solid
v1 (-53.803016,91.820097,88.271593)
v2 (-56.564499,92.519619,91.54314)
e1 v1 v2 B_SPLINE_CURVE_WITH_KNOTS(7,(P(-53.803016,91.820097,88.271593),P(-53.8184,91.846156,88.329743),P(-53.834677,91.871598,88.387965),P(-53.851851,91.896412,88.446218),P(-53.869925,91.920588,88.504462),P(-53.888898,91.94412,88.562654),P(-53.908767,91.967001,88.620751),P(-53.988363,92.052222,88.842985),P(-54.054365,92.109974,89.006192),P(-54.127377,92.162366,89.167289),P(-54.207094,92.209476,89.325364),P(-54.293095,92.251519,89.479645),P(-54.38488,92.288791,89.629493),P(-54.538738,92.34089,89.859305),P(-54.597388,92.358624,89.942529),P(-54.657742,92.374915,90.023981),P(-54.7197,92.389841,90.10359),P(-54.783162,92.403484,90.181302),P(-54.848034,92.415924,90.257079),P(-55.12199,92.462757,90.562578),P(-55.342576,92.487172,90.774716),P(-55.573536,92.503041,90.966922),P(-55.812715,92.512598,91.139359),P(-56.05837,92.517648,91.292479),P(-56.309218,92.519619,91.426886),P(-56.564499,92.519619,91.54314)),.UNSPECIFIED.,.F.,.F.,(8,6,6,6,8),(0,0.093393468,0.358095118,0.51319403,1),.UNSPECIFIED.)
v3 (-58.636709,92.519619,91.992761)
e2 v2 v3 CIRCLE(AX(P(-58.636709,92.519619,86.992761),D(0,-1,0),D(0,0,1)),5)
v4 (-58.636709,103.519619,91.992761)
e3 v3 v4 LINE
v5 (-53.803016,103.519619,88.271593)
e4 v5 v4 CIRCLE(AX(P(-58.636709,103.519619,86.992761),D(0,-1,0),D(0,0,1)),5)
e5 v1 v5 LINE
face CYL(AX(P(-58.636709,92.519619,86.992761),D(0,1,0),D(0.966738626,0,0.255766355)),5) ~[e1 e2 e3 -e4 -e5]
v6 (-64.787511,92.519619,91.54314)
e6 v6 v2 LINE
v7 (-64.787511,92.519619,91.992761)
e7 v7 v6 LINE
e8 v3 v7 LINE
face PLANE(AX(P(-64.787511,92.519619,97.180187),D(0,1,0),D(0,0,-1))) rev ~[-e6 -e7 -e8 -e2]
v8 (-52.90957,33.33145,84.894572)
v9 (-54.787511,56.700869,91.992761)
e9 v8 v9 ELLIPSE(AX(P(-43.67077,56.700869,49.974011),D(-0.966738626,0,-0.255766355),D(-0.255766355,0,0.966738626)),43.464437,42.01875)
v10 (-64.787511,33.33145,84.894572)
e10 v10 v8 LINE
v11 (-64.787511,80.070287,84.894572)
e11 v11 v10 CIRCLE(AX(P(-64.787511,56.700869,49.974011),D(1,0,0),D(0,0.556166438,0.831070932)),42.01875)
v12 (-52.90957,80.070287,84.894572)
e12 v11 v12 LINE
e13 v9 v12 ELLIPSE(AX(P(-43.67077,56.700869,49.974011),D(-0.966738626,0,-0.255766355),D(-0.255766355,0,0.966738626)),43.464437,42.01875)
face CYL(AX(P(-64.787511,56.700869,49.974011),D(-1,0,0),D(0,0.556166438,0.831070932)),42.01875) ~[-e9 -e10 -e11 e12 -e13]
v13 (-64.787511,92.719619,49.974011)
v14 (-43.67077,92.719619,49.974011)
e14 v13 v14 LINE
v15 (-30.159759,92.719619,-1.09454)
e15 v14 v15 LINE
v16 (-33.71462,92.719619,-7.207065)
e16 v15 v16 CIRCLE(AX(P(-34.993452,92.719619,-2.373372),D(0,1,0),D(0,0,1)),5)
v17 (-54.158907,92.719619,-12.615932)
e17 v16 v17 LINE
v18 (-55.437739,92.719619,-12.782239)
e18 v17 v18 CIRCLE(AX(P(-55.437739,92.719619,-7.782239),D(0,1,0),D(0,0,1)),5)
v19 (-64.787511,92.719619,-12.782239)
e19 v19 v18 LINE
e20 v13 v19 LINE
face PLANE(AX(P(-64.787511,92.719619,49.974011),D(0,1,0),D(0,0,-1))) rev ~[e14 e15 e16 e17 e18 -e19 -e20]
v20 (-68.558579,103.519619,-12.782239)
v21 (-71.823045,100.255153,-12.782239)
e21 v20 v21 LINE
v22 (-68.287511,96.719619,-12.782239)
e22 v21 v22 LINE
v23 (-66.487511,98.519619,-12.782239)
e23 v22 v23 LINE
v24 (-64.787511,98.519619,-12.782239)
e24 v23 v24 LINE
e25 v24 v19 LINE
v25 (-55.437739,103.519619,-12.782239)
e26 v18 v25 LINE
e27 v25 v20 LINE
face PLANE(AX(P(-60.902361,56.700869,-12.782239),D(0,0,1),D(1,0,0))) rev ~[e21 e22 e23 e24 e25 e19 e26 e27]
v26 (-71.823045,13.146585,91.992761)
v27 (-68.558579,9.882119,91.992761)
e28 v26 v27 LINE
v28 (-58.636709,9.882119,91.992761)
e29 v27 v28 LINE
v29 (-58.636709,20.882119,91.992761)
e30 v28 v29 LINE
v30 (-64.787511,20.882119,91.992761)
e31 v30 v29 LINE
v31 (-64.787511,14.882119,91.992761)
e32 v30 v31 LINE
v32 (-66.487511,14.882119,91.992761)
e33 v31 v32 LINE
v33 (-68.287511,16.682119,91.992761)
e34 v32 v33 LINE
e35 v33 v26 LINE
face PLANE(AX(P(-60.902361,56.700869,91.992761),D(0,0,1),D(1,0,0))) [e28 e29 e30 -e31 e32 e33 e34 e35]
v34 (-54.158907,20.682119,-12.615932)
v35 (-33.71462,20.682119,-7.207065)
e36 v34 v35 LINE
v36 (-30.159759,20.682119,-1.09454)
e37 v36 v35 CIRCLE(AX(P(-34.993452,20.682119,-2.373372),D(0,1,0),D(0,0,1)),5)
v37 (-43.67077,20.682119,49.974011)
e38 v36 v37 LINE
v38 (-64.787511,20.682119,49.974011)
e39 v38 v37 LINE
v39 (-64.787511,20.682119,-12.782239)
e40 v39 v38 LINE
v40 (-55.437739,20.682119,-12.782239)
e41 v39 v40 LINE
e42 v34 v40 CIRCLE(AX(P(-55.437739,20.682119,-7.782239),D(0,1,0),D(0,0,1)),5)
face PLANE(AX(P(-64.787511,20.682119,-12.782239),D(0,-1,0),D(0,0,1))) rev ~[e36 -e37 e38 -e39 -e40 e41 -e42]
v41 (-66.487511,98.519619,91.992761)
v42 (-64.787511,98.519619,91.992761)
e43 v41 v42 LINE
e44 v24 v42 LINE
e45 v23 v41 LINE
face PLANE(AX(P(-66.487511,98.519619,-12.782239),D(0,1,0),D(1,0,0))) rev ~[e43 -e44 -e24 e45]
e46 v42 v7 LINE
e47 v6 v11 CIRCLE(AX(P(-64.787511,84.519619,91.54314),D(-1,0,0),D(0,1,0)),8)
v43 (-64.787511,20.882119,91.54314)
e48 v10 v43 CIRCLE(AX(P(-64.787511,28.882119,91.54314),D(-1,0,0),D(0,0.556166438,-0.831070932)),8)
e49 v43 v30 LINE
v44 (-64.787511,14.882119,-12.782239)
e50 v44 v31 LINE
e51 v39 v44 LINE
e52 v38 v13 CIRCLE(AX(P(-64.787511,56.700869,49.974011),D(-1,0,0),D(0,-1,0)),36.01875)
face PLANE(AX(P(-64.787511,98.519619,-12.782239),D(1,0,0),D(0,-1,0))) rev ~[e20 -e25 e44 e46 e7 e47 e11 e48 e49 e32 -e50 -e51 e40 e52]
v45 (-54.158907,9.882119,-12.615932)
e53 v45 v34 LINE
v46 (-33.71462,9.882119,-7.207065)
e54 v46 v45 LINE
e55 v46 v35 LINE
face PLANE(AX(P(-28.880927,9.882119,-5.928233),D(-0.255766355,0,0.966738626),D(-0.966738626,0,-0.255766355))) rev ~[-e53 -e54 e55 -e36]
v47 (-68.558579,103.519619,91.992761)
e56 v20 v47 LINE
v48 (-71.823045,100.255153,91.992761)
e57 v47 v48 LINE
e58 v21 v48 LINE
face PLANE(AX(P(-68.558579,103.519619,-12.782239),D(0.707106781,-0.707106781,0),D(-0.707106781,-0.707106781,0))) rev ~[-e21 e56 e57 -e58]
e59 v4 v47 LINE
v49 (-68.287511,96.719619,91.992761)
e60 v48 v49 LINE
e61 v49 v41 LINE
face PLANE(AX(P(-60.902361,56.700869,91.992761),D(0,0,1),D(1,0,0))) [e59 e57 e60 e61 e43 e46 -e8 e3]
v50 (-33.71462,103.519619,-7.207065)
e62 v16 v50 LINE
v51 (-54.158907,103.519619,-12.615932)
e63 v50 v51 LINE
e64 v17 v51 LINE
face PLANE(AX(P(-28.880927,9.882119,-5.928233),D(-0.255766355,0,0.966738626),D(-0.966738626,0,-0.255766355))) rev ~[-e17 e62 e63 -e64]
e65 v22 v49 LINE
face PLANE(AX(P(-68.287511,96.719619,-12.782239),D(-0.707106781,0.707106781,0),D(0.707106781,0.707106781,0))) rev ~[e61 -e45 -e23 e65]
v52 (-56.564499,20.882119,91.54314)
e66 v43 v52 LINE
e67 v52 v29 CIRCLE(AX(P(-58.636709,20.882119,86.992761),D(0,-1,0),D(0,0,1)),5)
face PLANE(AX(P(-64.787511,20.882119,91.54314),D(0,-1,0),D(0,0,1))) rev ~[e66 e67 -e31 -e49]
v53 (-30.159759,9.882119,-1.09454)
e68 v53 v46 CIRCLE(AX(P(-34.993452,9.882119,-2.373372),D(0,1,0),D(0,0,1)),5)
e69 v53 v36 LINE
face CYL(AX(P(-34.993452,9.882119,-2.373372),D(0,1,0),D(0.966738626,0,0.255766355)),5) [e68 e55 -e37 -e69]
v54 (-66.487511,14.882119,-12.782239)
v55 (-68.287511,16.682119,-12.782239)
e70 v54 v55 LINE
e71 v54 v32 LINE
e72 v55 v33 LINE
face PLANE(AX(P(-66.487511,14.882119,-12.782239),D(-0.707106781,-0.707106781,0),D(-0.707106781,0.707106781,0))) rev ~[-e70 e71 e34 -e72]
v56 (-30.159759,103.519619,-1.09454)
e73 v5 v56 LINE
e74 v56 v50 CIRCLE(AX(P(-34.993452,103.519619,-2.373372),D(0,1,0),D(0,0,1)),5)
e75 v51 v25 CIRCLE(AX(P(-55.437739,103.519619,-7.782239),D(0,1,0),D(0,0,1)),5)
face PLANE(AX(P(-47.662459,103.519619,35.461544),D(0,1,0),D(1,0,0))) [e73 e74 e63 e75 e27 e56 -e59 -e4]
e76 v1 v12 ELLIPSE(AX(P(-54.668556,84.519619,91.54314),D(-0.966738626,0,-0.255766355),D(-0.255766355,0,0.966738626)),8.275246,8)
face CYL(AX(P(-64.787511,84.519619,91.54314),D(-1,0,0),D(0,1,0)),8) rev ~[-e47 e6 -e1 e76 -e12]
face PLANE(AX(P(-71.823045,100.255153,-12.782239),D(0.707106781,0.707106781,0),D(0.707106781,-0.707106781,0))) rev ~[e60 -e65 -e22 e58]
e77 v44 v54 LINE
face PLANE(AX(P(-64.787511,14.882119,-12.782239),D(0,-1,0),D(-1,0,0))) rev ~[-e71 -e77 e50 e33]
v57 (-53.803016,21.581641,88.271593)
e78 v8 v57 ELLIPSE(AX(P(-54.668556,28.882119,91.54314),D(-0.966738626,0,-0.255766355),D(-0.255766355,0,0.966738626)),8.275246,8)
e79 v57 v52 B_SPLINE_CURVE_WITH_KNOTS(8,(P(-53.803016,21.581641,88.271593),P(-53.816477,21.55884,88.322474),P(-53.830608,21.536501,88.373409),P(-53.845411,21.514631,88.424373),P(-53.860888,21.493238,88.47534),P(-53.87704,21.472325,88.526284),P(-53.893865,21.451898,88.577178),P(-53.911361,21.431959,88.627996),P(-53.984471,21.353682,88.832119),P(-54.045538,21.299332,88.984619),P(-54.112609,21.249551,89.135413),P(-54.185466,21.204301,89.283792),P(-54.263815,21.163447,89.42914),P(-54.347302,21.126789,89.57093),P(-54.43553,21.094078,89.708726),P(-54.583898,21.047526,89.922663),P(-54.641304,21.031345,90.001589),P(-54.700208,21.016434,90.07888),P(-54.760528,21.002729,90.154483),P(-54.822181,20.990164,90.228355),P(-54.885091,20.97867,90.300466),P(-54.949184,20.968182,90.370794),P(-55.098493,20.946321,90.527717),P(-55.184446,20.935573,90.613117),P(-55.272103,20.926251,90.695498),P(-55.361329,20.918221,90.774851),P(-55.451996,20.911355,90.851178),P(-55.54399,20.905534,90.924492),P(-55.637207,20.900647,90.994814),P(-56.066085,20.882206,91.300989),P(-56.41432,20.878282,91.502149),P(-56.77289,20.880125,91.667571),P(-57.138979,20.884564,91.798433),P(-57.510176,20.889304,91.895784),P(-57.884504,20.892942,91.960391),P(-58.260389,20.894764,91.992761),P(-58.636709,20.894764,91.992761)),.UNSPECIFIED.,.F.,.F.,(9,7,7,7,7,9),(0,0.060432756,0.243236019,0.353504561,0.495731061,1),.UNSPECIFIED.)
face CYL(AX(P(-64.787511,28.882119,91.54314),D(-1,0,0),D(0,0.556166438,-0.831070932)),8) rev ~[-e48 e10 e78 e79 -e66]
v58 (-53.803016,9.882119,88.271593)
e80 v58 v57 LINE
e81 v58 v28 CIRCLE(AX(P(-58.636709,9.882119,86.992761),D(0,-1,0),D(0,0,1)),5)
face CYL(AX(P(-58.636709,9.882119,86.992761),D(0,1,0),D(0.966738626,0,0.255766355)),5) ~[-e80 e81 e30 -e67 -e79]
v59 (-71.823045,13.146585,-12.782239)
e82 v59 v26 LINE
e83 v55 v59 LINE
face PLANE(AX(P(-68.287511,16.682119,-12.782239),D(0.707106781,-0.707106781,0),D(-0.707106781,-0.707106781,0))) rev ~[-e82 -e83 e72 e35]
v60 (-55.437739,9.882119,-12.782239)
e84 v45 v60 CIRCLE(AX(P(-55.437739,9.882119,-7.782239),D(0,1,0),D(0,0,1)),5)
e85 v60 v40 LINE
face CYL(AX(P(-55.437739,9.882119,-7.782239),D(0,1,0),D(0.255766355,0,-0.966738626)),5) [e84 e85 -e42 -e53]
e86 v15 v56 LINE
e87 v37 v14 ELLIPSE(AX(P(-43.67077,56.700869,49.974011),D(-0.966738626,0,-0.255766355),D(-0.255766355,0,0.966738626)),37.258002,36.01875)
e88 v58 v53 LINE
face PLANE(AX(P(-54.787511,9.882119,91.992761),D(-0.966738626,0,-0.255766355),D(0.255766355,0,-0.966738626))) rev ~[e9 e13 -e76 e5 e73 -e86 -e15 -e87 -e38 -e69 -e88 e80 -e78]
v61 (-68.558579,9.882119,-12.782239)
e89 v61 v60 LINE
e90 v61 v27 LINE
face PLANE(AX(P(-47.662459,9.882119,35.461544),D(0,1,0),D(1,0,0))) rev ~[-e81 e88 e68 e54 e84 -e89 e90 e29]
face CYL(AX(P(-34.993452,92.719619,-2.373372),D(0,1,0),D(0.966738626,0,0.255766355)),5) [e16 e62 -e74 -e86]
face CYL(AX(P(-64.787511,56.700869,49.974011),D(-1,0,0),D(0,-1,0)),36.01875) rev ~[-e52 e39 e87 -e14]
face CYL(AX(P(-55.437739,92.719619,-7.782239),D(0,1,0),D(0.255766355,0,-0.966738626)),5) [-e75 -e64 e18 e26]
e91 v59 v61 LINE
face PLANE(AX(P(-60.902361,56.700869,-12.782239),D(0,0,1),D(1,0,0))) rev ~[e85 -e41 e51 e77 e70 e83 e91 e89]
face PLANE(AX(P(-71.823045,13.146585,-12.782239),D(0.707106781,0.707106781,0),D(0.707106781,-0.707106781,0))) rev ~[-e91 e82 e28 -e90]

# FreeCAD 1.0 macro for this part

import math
import FreeCAD as App
import Part
import Sketcher
Q = App.Units.Quantity


def edges_at(feature, points):
    """Names of the edges that pass closest to the given points."""
    edges = feature.Shape.Edges
    near = lambda p: min(range(len(edges)), key=lambda i: edges[i].distToShape(Part.Vertex(*p))[0])
    return sorted({f"Edge{near(p) + 1}" for p in points})


def add_polygon(sketch, points):
    """Adds a closed chain of lines whose ends are joined by coincident constraints."""
    first, n = sketch.GeometryCount, len(points)
    for a, b in zip(points, points[1:] + points[:1]):
        sketch.addGeometry(Part.LineSegment(App.Vector(*a, 0), App.Vector(*b, 0)), False)
    for i in range(n):
        sketch.addConstraint(Sketcher.Constraint("Coincident", first + i, 2, first + (i + 1) % n, 1))

doc = App.newDocument("Part")
body = doc.addObject("PartDesign::Body", "Body")

sketch1 = body.newObject("Sketcher::SketchObject", "Sketch")
sketch1.AttachmentSupport = (doc.getObject("XY_Plane"), [""])
sketch1.MapMode = "FlatFace"
add_polygon(sketch1, [(-68.3, 96.7), (-66.5, 98.5), (-64.8, 98.5), (-64.8, 14.9), (-66.5, 14.9), (-68.3, 16.7), (-71.8, 13.1), (-68.6, 9.9), (-54.8, 9.9), (-54.8, 103.5), (-68.6, 103.5), (-71.8, 100.3)])
sketch1.addConstraint([
    Sketcher.Constraint("Horizontal", 1),
    Sketcher.Constraint("Vertical", 2),
    Sketcher.Constraint("Horizontal", 3),
    Sketcher.Constraint("Horizontal", 7),
    Sketcher.Constraint("Vertical", 8),
    Sketcher.Constraint("Horizontal", 9),
    Sketcher.Constraint("Perpendicular", 0, 4),
    Sketcher.Constraint("Perpendicular", 4, 5),
    Sketcher.Constraint("Perpendicular", 5, 6),
    Sketcher.Constraint("Perpendicular", 6, 10),
    Sketcher.Constraint("Perpendicular", 10, 11),
    Sketcher.Constraint("Vertical", 0, 2, 3, 2),
    Sketcher.Constraint("Vertical", 6, 2, 9, 2),
    Sketcher.Constraint("Vertical", 5, 2, 10, 2),
    Sketcher.Constraint("Vertical", 4, 2, 11, 2),
    Sketcher.Constraint("Equal", 0, 4),
    Sketcher.Constraint("Distance", 5, Q("5 mm")),
    Sketcher.Constraint("DistanceX", 1, 1, 1, 2, Q("1.7 mm")),
    Sketcher.Constraint("DistanceY", 6, 2, 3, 2, Q("5 mm")),
    Sketcher.Constraint("DistanceX", 2, 2, 7, 2, Q("10 mm")),
    Sketcher.Constraint("DistanceX", 4, 2, 3, 2, Q("1.8 mm")),
    Sketcher.Constraint("DistanceY", 2, 2, 2, 1, Q("83.6375 mm")),
    Sketcher.Constraint("DistanceX", 0, 2, -1, 1, Q("66.487511 mm")),
    Sketcher.Constraint("DistanceY", -1, 1, 0, 2, Q("98.519619 mm")),
])
pad1 = body.newObject("PartDesign::Pad", "Pad")
pad1.Profile = sketch1
pad1.Type = "TwoLengths"
pad1.Length = 91.992761
pad1.Length2 = 12.782239

sketch2 = body.newObject("Sketcher::SketchObject", "Sketch001")
sketch2.AttachmentSupport = (doc.getObject("XZ_Plane"), [""])
sketch2.MapMode = "FlatFace"
sketch2.AttachmentOffset = App.Placement(App.Vector(0, 0, -9.882119), App.Rotation())
add_polygon(sketch2, [(-55, -13), (-55, 92), (-29, -6)])
sketch2.addConstraint([
    Sketcher.Constraint("Vertical", 0),
    Sketcher.Constraint("Perpendicular", 1, 2),
    Sketcher.Constraint("DistanceY", 0, 1, 0, 2, Q("104.775 mm")),
    Sketcher.Constraint("Distance", 1, Q("101.29004 mm")),
    Sketcher.Constraint("DistanceX", 0, 2, -1, 1, Q("54.787511 mm")),
    Sketcher.Constraint("DistanceY", -1, 1, 0, 2, Q("91.992761 mm")),
])
pad2 = body.newObject("PartDesign::Pad", "Pad001")
pad2.Profile = sketch2
pad2.Length = 93.6375
pad2.Reversed = True

sketch3 = body.newObject("Sketcher::SketchObject", "Sketch002")
sketch3.AttachmentSupport = (doc.getObject("YZ_Plane"), [""])
sketch3.MapMode = "FlatFace"
sketch3.AttachmentOffset = App.Placement(App.Vector(0, 0, -64.787511), App.Rotation())
sketch3.addGeometry([
    Part.LineSegment(App.Vector(93, 50, 0), App.Vector(93, -13, 0)),
    Part.LineSegment(App.Vector(93, -13, 0), App.Vector(21, -13, 0)),
    Part.LineSegment(App.Vector(21, -13, 0), App.Vector(21, 50, 0)),
    Part.ArcOfCircle(Part.Circle(App.Vector(57, 50, 0), App.Vector(0, 0, 1), 36), math.radians(0), math.radians(180)),
    Part.LineSegment(App.Vector(21, 92, 0), App.Vector(21, 97, 0)),
    Part.LineSegment(App.Vector(21, 97, 0), App.Vector(93, 97, 0)),
    Part.LineSegment(App.Vector(93, 97, 0), App.Vector(93, 92, 0)),
    Part.ArcOfCircle(Part.Circle(App.Vector(85, 92, 0), App.Vector(0, 0, 1), 8), math.radians(-124), math.radians(0)),
    Part.ArcOfCircle(Part.Circle(App.Vector(57, 50, 0), App.Vector(0, 0, 1), 42), math.radians(56), math.radians(124)),
    Part.ArcOfCircle(Part.Circle(App.Vector(29, 92, 0), App.Vector(0, 0, 1), 8), math.radians(180), math.radians(304)),
], False)
sketch3.addConstraint([
    Sketcher.Constraint("Coincident", 0, 2, 1, 1),
    Sketcher.Constraint("Coincident", 1, 2, 2, 1),
    Sketcher.Constraint("Tangent", 2, 2, 3, 2),
    Sketcher.Constraint("Tangent", 3, 1, 0, 1),
    Sketcher.Constraint("Coincident", 4, 2, 5, 1),
    Sketcher.Constraint("Coincident", 5, 2, 6, 1),
    Sketcher.Constraint("Tangent", 6, 2, 7, 2),
    Sketcher.Constraint("Tangent", 7, 1, 8, 1),
    Sketcher.Constraint("Tangent", 8, 2, 9, 2),
    Sketcher.Constraint("Tangent", 9, 1, 4, 1),
    Sketcher.Constraint("Vertical", 0),
    Sketcher.Constraint("Horizontal", 1),
    Sketcher.Constraint("Vertical", 2),
    Sketcher.Constraint("Vertical", 4),
    Sketcher.Constraint("Horizontal", 5),
    Sketcher.Constraint("Vertical", 6),
    Sketcher.Constraint("Coincident", 8, 3, 3, 3),
    Sketcher.Constraint("Equal", 7, 9),
    Sketcher.Constraint("Horizontal", 7, 3, 9, 3),
    Sketcher.Constraint("Radius", 7, Q("8 mm")),
    Sketcher.Constraint("DistanceX", 7, 3, 0, 2, Q("8.2 mm")),
    Sketcher.Constraint("Radius", 3, Q("36.01875 mm")),
    Sketcher.Constraint("Radius", 8, Q("42.01875 mm")),
    Sketcher.Constraint("DistanceY", 0, 2, 0, 1, Q("62.75625 mm")),
    Sketcher.Constraint("DistanceY", 4, 1, 4, 2, Q("5.637048 mm")),
    Sketcher.Constraint("DistanceX", -1, 1, 3, 3, Q("56.700869 mm")),
    Sketcher.Constraint("DistanceY", -1, 1, 3, 3, Q("49.974011 mm")),
])
pocket1 = body.newObject("PartDesign::Pocket", "Pocket")
pocket1.Profile = sketch3
pocket1.Type = "ThroughAll"
pocket1.Reversed = True
doc.recompute()

fillet = body.newObject("PartDesign::Fillet", "Fillet")
fillet.Base = (pocket1, edges_at(pocket1, [
    (-54.788, 15.282, -12.782),
    (-54.788, 98.12, -12.782),
    (-28.881, 15.282, -5.928),
    (-28.881, 98.12, -5.928),
    (-54.788, 15.382, 91.993),
    (-54.788, 98.02, 91.993),
]))
fillet.Radius = 5

doc.recompute()
